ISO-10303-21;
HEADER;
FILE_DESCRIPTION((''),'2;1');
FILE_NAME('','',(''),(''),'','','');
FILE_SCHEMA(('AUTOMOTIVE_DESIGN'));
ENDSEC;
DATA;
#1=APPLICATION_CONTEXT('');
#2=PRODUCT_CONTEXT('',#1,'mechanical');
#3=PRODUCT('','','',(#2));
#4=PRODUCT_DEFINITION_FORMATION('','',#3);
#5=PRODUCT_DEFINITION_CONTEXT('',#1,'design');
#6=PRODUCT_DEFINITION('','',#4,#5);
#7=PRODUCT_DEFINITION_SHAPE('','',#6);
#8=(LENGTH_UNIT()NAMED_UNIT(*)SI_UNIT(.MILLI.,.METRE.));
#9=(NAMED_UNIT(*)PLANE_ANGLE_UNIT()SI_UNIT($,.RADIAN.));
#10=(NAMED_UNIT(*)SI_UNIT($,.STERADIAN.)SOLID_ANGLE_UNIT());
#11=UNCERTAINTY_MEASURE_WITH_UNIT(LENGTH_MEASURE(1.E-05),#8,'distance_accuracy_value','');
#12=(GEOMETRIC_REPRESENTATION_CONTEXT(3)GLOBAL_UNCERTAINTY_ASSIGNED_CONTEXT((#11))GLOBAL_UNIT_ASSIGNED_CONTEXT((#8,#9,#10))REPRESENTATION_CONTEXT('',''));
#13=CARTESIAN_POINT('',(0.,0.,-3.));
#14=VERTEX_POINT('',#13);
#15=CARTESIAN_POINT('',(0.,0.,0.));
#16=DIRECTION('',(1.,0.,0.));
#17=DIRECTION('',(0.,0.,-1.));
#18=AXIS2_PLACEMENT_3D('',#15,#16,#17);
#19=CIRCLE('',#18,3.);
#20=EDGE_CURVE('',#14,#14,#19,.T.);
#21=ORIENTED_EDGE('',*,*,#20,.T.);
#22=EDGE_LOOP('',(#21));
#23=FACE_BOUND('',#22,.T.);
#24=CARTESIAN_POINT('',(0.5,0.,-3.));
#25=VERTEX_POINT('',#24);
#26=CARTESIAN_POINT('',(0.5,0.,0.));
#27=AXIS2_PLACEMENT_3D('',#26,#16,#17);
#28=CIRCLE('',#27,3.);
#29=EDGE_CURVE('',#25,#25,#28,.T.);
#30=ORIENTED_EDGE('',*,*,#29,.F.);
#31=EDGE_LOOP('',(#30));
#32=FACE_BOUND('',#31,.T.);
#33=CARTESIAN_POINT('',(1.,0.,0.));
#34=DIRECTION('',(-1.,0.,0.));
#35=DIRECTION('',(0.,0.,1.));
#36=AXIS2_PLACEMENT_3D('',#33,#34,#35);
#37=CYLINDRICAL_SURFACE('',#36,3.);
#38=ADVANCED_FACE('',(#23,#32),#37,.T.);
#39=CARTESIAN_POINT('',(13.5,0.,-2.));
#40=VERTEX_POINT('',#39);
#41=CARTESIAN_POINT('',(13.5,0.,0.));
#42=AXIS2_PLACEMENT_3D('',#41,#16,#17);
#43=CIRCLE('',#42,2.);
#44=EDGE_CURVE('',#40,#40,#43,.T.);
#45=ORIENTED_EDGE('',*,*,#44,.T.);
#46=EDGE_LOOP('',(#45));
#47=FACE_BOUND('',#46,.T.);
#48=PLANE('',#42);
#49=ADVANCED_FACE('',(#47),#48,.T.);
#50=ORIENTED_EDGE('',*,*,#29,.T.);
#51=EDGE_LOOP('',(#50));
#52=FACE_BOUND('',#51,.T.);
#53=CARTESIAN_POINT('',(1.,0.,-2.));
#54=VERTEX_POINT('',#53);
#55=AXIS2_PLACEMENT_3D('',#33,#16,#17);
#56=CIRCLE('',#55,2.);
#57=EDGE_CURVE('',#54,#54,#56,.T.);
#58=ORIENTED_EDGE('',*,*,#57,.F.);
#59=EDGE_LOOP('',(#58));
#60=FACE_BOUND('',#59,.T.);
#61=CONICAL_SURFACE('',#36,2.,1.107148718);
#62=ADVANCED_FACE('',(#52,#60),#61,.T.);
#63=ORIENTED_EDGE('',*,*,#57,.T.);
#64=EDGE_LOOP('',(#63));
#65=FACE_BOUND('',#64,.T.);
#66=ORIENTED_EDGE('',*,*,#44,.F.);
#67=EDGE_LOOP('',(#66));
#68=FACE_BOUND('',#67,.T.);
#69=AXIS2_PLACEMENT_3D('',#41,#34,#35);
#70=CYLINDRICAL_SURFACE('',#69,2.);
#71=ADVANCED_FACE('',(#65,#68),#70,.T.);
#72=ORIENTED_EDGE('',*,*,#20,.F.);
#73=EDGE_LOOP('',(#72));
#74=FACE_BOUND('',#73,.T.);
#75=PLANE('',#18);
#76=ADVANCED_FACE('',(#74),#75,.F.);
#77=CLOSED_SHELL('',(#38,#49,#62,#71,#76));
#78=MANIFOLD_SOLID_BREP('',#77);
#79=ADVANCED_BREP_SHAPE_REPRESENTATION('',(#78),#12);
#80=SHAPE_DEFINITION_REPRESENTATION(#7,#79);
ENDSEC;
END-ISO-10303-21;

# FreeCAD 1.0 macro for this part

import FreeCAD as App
import Part
import Sketcher
from FreeCAD import Vector
Q = App.Units.Quantity


def add_polygon(sketch, points):
    """Adds a closed chain of lines whose ends are joined by coincident constraints."""
    first, n = sketch.GeometryCount, len(points)
    for a, b in zip(points, points[1:] + points[:1]):
        sketch.addGeometry(Part.LineSegment(App.Vector(*a, 0), App.Vector(*b, 0)), False)
    for i in range(n):
        sketch.addConstraint(Sketcher.Constraint("Coincident", first + i, 2, first + (i + 1) % n, 1))

doc = App.newDocument("Part")
params = doc.addObject("Spreadsheet::Sheet", "Params")
for row, (alias, value) in enumerate([
    ("sketch1_diameter", "6 mm"),
    ("pad1_length", "1 mm"),
    ("sketch2_diameter", "4 mm"),
    ("pad2_length", "13.5 mm"),
    ("sketch3_height", "1 mm"),
    ("sketch3_width", "0.5 mm"),
    ("groove_angle", "360 deg"),
], start=1):
    params.set(f"A{row}", alias)
    params.set(f"B{row}", "=" + value)
    params.setAlias(f"B{row}", alias)

body = doc.addObject("PartDesign::Body", "Body")

sketch1 = body.newObject("Sketcher::SketchObject", "Sketch")
sketch1.AttachmentSupport = (doc.getObject("YZ_Plane"), [""])
sketch1.MapMode = "FlatFace"
sketch1.addGeometry(Part.Circle(Vector(0, 0, 0), Vector(0, 0, 1), 3), False)
sketch1.addConstraint(Sketcher.Constraint("Coincident", 0, 3, -1, 1))
sketch1.addConstraint(Sketcher.Constraint("Diameter", 0, Q("6 mm")))
sketch1.setExpression("Constraints[1]", "Params.sketch1_diameter")
pad1 = body.newObject("PartDesign::Pad", "Pad")
pad1.Profile = sketch1
pad1.setExpression("Length", "Params.pad1_length")

sketch2 = body.newObject("Sketcher::SketchObject", "Sketch001")
sketch2.AttachmentSupport = (doc.getObject("YZ_Plane"), [""])
sketch2.MapMode = "FlatFace"
sketch2.addGeometry(Part.Circle(Vector(0, 0, 0), Vector(0, 0, 1), 2), False)
sketch2.addConstraint(Sketcher.Constraint("Coincident", 0, 3, -1, 1))
sketch2.addConstraint(Sketcher.Constraint("Diameter", 0, Q("4 mm")))
sketch2.setExpression("Constraints[1]", "Params.sketch2_diameter")
pad2 = body.newObject("PartDesign::Pad", "Pad001")
pad2.Profile = sketch2
pad2.setExpression("Length", "Params.pad2_length")

sketch3 = body.newObject("Sketcher::SketchObject", "Sketch002")
sketch3.AttachmentSupport = (doc.getObject("XZ_Plane"), [""])
sketch3.MapMode = "FlatFace"
add_polygon(sketch3, [(1, 2), (0.5, 3), (1, 3)])
sketch3.addConstraint(Sketcher.Constraint("Horizontal", 1))
sketch3.addConstraint(Sketcher.Constraint("Vertical", 2))
sketch3.addConstraint(Sketcher.Constraint("DistanceY", 2, 2, 2, 1, Q("1 mm")))
sketch3.addConstraint(Sketcher.Constraint("DistanceX", 1, 1, 1, 2, Q("0.5 mm")))
sketch3.addConstraint(Sketcher.Constraint("DistanceY", -1, 1, 0, 2, Q("3 mm")))
sketch3.addConstraint(Sketcher.Constraint("DistanceX", -1, 1, 1, 2, Q("1 mm")))
sketch3.setExpression("Constraints[5]", "Params.sketch3_height")
sketch3.setExpression("Constraints[6]", "Params.sketch3_width")
groove = body.newObject("PartDesign::Groove", "Groove")
groove.Profile = sketch3
groove.ReferenceAxis = (sketch3, ["H_Axis"])
groove.setExpression("Angle", "Params.groove_angle")

doc.recompute()
